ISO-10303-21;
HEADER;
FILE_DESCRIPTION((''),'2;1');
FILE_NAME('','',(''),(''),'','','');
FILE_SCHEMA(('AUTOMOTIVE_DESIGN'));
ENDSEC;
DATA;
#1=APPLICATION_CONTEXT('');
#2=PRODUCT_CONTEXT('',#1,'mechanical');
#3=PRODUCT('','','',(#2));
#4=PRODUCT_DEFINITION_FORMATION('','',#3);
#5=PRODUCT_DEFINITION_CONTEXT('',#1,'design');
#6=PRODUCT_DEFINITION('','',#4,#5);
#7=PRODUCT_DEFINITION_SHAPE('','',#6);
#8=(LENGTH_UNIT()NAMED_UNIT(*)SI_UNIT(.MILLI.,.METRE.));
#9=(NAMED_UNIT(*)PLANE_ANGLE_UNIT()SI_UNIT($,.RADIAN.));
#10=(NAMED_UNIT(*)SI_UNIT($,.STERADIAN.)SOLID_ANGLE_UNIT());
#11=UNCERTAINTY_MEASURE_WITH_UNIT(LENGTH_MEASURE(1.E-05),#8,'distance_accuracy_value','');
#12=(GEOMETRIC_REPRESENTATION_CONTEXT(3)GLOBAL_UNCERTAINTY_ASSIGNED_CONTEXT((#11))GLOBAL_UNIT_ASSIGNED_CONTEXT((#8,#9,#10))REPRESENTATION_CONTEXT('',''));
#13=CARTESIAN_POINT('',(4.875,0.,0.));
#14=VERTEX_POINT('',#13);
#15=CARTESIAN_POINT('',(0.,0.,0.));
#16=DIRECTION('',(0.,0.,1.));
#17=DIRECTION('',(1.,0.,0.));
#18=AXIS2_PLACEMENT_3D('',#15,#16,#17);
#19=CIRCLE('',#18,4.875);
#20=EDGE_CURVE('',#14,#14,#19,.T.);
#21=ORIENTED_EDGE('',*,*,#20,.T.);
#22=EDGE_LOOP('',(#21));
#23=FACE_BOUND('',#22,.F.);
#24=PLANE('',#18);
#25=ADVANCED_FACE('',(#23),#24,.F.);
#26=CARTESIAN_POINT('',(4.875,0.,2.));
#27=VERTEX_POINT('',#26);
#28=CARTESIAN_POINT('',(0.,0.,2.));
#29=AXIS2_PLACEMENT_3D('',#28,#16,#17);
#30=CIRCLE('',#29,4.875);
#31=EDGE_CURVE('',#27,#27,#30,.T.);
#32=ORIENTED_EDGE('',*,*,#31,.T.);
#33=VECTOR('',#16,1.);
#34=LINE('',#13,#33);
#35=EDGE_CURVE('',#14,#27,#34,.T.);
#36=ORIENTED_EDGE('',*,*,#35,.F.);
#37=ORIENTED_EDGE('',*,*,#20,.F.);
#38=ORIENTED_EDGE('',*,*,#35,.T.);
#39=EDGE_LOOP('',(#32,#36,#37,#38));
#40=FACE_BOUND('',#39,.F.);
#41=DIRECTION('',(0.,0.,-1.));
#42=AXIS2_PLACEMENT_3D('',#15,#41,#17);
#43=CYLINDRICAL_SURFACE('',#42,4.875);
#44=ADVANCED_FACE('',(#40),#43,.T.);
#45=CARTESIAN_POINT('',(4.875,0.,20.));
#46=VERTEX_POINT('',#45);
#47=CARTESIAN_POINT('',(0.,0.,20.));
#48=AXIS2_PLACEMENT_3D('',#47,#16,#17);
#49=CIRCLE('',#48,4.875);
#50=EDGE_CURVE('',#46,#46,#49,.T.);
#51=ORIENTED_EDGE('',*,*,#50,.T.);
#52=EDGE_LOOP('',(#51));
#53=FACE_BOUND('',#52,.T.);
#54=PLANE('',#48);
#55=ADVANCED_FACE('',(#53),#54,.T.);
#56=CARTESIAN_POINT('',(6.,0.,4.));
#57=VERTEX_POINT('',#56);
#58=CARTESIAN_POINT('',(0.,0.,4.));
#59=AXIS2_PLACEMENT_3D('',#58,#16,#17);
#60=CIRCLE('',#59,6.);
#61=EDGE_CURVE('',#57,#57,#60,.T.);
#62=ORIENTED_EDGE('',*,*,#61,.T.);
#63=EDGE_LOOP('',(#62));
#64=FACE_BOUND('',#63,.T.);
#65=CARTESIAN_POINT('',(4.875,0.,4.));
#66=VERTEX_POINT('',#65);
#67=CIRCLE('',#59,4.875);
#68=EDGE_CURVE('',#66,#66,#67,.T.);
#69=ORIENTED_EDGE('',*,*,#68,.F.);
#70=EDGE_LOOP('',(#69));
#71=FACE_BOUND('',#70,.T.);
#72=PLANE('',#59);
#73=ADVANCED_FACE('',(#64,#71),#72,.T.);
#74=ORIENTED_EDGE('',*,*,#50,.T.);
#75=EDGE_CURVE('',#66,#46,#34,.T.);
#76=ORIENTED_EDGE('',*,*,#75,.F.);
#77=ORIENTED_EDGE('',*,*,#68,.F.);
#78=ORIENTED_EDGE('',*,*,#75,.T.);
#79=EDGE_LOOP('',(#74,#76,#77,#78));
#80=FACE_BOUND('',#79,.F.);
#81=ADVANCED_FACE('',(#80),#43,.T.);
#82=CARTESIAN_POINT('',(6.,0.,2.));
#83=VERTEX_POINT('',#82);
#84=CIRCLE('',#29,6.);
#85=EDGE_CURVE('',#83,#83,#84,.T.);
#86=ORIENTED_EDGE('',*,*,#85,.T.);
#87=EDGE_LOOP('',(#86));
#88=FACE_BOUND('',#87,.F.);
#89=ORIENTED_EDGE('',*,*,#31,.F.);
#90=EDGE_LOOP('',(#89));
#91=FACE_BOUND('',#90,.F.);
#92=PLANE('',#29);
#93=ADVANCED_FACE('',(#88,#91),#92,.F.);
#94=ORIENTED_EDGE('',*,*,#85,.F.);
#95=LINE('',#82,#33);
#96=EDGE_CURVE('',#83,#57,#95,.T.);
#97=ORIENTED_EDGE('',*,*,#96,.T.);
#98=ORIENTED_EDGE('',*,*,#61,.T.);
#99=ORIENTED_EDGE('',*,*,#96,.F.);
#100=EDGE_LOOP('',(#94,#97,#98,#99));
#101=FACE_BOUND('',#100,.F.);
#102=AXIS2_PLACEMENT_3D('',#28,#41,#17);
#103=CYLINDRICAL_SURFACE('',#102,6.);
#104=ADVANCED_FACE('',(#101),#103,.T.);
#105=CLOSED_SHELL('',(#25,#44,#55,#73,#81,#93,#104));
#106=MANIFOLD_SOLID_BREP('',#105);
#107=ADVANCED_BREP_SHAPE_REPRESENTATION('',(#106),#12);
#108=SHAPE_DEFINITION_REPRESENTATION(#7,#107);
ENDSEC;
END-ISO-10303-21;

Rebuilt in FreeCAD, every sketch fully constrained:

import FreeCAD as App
import Part
import Sketcher

doc = App.newDocument("Part")
body = doc.addObject("PartDesign::Body", "Body")

sketch1 = body.newObject("Sketcher::SketchObject", "Sketch")
sketch1.AttachmentSupport = (doc.getObject("XY_Plane"), [""])
sketch1.MapMode = "FlatFace"
sketch1.addGeometry(Part.Circle(App.Vector(0, 0, 0), App.Vector(0, 0, 1), 4.9), False)
sketch1.addConstraint(Sketcher.Constraint("Coincident", 0, 3, -1, 1))
sketch1.addConstraint(Sketcher.Constraint("Diameter", 0, 9.75))
pad1 = body.newObject("PartDesign::Pad", "Pad")
pad1.Profile = sketch1
pad1.Length = 20

sketch2 = body.newObject("Sketcher::SketchObject", "Sketch001")
sketch2.AttachmentSupport = (doc.getObject("XY_Plane"), [""])
sketch2.MapMode = "FlatFace"
sketch2.AttachmentOffset = App.Placement(App.Vector(0, 0, 2), App.Rotation())
sketch2.addGeometry(Part.Circle(App.Vector(0, 0, 0), App.Vector(0, 0, 1), 6), False)
sketch2.addGeometry(Part.Circle(App.Vector(0, 0, 0), App.Vector(0, 0, 1), 4.9), False)
sketch2.addConstraint(Sketcher.Constraint("Coincident", 0, 3, -1, 1))
sketch2.addConstraint(Sketcher.Constraint("Coincident", 1, 3, -1, 1))
sketch2.addConstraint(Sketcher.Constraint("Diameter", 0, 12.0))
sketch2.addConstraint(Sketcher.Constraint("Diameter", 1, 9.75))
pad2 = body.newObject("PartDesign::Pad", "Pad001")
pad2.Profile = sketch2
pad2.Length = 2

doc.recompute()
